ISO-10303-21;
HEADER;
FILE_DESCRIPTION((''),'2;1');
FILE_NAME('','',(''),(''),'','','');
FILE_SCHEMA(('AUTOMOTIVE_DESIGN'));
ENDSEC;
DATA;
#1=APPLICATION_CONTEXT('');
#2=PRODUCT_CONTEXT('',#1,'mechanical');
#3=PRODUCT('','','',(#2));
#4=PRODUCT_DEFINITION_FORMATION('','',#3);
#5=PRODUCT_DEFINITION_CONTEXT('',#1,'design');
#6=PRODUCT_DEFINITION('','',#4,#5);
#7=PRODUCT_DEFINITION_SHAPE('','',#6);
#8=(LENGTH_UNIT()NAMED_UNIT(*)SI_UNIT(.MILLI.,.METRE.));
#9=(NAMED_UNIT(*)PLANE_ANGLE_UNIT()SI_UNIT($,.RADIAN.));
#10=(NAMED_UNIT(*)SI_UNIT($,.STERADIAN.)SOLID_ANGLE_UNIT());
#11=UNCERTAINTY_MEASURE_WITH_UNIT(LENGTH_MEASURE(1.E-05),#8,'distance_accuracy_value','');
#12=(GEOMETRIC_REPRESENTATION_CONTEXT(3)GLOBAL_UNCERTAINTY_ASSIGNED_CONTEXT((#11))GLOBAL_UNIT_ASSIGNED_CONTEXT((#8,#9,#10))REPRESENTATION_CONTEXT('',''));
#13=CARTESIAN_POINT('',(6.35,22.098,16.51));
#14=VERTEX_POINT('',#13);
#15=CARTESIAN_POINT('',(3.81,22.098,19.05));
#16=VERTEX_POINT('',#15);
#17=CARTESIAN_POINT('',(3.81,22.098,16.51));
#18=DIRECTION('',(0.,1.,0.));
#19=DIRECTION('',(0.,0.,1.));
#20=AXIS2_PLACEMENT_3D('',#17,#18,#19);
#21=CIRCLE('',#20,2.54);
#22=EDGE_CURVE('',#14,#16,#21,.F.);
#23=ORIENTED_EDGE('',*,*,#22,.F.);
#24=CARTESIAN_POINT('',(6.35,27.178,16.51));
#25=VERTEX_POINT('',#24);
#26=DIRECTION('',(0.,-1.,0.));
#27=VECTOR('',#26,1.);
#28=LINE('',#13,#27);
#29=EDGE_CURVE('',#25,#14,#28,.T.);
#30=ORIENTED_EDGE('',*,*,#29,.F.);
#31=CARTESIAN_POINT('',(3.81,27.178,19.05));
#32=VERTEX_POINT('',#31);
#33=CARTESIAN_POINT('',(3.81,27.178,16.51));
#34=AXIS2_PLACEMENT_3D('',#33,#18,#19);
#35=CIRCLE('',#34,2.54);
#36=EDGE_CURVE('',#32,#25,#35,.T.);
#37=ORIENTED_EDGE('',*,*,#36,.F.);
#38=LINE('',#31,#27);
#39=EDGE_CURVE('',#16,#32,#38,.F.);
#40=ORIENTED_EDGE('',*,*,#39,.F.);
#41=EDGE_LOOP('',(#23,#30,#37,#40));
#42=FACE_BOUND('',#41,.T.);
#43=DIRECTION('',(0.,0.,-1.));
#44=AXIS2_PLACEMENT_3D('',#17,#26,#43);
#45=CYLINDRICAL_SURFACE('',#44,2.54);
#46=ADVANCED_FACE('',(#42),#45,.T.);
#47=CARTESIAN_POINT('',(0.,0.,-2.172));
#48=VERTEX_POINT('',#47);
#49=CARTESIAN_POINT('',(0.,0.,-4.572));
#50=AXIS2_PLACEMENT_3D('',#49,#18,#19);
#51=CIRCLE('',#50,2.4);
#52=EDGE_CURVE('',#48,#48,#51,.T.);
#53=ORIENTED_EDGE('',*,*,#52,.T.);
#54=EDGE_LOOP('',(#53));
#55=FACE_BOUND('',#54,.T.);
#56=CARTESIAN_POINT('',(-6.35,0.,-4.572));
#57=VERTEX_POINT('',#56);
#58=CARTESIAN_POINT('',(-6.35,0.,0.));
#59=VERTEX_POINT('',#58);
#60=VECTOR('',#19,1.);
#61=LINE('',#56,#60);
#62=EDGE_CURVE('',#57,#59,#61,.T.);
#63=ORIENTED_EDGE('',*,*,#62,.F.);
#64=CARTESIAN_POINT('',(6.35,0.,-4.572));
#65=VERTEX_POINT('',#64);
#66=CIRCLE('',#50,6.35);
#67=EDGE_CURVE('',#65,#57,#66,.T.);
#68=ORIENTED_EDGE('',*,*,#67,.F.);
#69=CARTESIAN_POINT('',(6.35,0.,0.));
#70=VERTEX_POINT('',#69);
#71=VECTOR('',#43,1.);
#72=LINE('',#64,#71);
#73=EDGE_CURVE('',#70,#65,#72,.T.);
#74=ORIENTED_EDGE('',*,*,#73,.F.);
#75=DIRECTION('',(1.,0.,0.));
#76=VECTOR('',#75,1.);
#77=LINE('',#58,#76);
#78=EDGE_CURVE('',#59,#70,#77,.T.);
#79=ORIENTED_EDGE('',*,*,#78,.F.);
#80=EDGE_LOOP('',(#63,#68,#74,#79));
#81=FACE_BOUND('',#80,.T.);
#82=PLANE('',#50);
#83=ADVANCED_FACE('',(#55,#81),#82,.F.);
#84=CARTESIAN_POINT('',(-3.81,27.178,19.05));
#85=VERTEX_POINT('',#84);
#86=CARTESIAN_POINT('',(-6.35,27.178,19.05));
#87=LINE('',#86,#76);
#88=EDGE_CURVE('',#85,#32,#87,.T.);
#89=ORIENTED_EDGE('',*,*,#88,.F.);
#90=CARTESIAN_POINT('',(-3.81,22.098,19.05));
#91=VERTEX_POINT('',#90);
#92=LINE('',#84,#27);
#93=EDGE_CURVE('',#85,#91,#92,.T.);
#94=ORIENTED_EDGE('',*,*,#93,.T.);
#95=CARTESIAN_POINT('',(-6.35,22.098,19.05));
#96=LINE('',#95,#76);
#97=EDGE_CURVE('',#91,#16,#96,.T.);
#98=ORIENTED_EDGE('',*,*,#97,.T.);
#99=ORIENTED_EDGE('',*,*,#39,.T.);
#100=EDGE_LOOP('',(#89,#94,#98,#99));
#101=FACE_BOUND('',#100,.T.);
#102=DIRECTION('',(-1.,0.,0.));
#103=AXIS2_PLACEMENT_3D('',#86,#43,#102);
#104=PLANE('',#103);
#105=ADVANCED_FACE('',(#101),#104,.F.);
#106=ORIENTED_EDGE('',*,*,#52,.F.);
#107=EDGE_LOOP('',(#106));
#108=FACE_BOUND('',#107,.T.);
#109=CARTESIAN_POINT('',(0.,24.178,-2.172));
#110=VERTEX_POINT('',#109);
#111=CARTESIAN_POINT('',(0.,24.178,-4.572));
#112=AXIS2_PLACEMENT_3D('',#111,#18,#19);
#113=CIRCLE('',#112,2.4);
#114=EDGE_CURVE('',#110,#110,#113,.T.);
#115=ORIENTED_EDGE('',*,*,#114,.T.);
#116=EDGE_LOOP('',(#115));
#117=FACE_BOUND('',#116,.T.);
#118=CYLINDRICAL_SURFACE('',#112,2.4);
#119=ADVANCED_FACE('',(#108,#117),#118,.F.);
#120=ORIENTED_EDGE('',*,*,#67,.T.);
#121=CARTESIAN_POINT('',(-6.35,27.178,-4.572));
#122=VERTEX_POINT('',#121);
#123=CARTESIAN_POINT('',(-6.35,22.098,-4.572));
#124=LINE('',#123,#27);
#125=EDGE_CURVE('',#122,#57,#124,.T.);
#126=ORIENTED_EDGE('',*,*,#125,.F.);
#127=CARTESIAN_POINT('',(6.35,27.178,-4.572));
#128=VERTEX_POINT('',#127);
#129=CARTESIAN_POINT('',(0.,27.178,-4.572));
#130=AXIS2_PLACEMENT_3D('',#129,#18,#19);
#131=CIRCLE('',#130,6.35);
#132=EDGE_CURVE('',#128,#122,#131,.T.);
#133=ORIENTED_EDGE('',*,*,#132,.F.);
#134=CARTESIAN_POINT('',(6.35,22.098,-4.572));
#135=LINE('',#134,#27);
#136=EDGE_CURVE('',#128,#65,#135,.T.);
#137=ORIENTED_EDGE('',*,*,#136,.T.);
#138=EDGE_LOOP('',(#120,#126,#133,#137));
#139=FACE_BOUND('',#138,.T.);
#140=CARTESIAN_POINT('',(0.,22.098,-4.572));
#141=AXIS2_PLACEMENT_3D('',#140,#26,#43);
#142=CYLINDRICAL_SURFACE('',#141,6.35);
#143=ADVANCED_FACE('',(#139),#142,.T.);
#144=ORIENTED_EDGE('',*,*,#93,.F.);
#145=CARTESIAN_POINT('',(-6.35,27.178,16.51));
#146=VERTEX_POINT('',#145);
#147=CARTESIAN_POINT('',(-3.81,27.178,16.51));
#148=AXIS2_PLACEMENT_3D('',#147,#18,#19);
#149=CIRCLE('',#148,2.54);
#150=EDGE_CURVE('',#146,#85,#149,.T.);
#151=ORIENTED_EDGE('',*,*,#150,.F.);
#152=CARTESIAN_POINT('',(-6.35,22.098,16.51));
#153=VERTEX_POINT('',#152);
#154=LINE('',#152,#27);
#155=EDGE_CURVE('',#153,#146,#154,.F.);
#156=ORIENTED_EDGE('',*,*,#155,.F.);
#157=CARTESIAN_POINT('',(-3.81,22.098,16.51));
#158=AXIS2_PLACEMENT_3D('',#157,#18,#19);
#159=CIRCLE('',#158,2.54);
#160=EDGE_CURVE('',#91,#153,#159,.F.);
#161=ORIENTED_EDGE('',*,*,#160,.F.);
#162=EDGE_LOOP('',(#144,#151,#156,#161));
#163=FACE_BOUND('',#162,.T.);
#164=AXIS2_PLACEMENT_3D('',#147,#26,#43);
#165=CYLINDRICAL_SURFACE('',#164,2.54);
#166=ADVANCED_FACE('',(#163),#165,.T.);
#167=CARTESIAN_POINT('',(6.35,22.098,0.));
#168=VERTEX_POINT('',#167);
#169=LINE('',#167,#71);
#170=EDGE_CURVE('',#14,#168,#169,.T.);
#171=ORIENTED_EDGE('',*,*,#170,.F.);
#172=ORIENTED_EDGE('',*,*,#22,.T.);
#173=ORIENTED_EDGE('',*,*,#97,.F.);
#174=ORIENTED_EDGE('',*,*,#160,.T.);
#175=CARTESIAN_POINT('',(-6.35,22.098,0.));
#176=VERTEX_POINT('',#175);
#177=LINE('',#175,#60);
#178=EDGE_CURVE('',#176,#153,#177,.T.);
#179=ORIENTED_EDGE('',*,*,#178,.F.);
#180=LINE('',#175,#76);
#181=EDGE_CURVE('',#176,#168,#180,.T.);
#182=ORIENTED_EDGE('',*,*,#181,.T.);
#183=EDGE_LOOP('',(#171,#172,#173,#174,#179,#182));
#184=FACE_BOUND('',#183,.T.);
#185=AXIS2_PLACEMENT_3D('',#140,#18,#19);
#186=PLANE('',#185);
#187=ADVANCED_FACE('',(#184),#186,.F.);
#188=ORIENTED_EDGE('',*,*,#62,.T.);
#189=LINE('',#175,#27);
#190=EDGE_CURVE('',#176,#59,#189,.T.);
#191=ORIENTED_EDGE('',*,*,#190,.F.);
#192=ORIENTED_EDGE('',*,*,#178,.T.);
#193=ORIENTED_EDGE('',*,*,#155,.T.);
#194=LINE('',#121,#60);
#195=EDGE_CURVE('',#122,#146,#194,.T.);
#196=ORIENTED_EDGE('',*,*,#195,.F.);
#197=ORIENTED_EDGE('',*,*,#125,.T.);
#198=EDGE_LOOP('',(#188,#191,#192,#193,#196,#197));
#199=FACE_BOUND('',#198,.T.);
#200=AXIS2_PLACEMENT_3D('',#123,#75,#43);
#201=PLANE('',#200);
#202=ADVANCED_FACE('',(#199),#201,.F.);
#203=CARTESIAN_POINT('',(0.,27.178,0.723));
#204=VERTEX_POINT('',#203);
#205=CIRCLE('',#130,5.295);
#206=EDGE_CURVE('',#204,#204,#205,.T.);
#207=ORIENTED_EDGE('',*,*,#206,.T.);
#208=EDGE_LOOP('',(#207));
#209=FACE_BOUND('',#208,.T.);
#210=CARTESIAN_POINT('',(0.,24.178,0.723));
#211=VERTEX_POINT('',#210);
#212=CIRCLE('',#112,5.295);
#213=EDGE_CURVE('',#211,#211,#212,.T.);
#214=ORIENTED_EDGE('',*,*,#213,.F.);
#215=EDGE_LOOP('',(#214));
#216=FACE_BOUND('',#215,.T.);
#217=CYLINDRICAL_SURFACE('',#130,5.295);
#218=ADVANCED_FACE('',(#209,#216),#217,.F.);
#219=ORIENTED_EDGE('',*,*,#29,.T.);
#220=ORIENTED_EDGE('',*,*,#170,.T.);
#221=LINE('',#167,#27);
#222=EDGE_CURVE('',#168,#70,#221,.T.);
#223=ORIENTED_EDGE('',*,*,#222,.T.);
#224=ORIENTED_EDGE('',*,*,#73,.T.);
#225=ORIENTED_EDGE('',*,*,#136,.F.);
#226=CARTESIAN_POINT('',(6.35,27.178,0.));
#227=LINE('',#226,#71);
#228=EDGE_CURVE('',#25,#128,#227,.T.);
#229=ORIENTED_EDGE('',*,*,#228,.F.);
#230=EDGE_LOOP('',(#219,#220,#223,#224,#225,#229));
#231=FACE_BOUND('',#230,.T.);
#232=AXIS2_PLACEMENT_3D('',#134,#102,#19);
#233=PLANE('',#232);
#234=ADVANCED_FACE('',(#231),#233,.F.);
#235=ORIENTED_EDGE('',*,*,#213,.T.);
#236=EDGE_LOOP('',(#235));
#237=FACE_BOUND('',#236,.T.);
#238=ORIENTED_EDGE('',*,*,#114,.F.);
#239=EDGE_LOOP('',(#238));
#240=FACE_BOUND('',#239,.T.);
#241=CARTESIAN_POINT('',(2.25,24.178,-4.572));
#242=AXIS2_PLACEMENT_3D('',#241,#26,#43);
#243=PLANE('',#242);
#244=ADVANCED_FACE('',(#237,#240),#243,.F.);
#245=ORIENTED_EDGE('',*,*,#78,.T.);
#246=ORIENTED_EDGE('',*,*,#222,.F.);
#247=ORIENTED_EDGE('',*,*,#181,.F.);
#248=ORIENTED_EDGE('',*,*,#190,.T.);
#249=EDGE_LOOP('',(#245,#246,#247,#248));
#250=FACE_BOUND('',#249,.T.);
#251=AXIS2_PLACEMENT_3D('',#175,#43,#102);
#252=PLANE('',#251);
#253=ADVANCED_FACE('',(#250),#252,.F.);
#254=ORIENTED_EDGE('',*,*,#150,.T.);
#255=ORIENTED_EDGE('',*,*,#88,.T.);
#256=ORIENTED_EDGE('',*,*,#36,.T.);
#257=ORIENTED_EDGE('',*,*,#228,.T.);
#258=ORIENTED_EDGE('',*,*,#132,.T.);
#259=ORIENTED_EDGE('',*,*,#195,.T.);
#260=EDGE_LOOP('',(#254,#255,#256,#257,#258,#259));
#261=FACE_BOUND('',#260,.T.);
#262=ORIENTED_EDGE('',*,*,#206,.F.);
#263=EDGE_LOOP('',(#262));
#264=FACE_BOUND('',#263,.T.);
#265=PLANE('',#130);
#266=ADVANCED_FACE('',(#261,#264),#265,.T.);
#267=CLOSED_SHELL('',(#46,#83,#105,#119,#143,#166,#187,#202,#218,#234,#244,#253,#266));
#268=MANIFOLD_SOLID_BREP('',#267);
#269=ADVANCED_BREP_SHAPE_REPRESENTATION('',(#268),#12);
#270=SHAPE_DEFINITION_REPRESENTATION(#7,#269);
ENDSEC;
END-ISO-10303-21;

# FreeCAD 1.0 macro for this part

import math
import FreeCAD as App
import Part
import Sketcher
Q = App.Units.Quantity


def edges_at(feature, points):
    """Names of the edges that pass closest to the given points."""
    edges = feature.Shape.Edges
    near = lambda p: min(range(len(edges)), key=lambda i: edges[i].distToShape(Part.Vertex(*p))[0])
    return sorted({f"Edge{near(p) + 1}" for p in points})

doc = App.newDocument("Part")
body = doc.addObject("PartDesign::Body", "Body")

# Sketch on XZ plane
sketch1 = body.newObject("Sketcher::SketchObject", "Sketch")
sketch1.AttachmentSupport = (doc.getObject("XZ_Plane"), [""])
sketch1.MapMode = "FlatFace"
sketch1.addGeometry([
    Part.LineSegment(App.Vector(-6.3, -4.6, 0), App.Vector(-6.3, 0, 0)),
    Part.LineSegment(App.Vector(-6.3, 0, 0), App.Vector(6.3, 0, 0)),
    Part.LineSegment(App.Vector(6.3, 0, 0), App.Vector(6.3, -4.6, 0)),
    Part.ArcOfCircle(Part.Circle(App.Vector(0, -4.6, 0), App.Vector(0, 0, 1), 6.3), math.radians(180), math.radians(360)),
], False)
sketch1.addConstraint([
    Sketcher.Constraint("Coincident", 0, 2, 1, 1),
    Sketcher.Constraint("Coincident", 1, 2, 2, 1),
    Sketcher.Constraint("Tangent", 2, 2, 3, 2),
    Sketcher.Constraint("Tangent", 3, 1, 0, 1),
    Sketcher.Constraint("Vertical", 0),
    Sketcher.Constraint("Horizontal", 1),
    Sketcher.Constraint("Vertical", 2),
    Sketcher.Constraint("Symmetric", 0, 2, 1, 2, -1, 1),
    Sketcher.Constraint("Radius", 3, Q("0.25 in")),
    Sketcher.Constraint("DistanceY", 0, 1, 0, 2, Q("0.18 in")),
])
pad1 = body.newObject("PartDesign::Pad", "Pad")
pad1.Profile = sketch1
pad1.Length = Q("0.87 in")
pad1.Reversed = True

# Sketch on XZ plane
sketch2 = body.newObject("Sketcher::SketchObject", "Sketch001")
sketch2.AttachmentSupport = (doc.getObject("XZ_Plane"), [""])
sketch2.MapMode = "FlatFace"
sketch2.AttachmentOffset = App.Placement(App.Vector(0, 0, -0.87 * 25.4), App.Rotation())
sketch2.addGeometry([
    Part.LineSegment(App.Vector(-6, 19, 0), App.Vector(6, 19, 0)),
    Part.LineSegment(App.Vector(6, 19, 0), App.Vector(6, -5, 0)),
    Part.ArcOfCircle(Part.Circle(App.Vector(0, -5, 0), App.Vector(0, 0, 1), 6), math.radians(180), math.radians(360)),
    Part.LineSegment(App.Vector(-6, -5, 0), App.Vector(-6, 19, 0)),
], False)
sketch2.addConstraint([
    Sketcher.Constraint("Coincident", 0, 2, 1, 1),
    Sketcher.Constraint("Tangent", 1, 2, 2, 2),
    Sketcher.Constraint("Tangent", 2, 1, 3, 1),
    Sketcher.Constraint("Coincident", 3, 2, 0, 1),
    Sketcher.Constraint("Horizontal", 0),
    Sketcher.Constraint("Vertical", 1),
    Sketcher.Constraint("Vertical", 3),
    Sketcher.Constraint("PointOnObject", 2, 3, -2),
    Sketcher.Constraint("Radius", 2, Q("0.25 in")),
    Sketcher.Constraint("DistanceY", 1, 2, 1, 1, Q("0.93 in")),
    Sketcher.Constraint("DistanceY", 2, 3, -1, 1, Q("0.18 in")),
])
pad2 = body.newObject("PartDesign::Pad", "Pad001")
pad2.Profile = sketch2
pad2.Length = Q("0.2 in")
pad2.Reversed = True
doc.recompute()

fillet = body.newObject("PartDesign::Fillet", "Fillet")
fillet.Base = (pad2, edges_at(pad2, [(6.35, 24.638, 19.05), (-6.35, 24.638, 19.05)]))
fillet.Radius = Q("0.1 in")

# Sketch on XZ plane
sketch3 = body.newObject("Sketcher::SketchObject", "Sketch002")
sketch3.AttachmentSupport = (doc.getObject("XZ_Plane"), [""])
sketch3.MapMode = "FlatFace"
sketch3.AttachmentOffset = App.Placement(App.Vector(0, 0, -1.07 * 25.4), App.Rotation())
sketch3.addGeometry(Part.Circle(App.Vector(0, -4.6, 0), App.Vector(0, 0, 1), 2.2), False)
sketch3.addConstraint([
    Sketcher.Constraint("PointOnObject", 0, 3, -2),
    Sketcher.Constraint("Diameter", 0, 4.5),
    Sketcher.Constraint("DistanceY", 0, 3, -1, 1, Q("0.18 in")),
])
doc.recompute()
hole = body.newObject("PartDesign::Hole", "Hole")
hole.Profile = sketch3
hole.ThreadType = "None"
hole.Diameter = 4.5
hole.DepthType = "ThroughAll"
hole.HoleCutType = "Counterbore"
hole.HoleCutDiameter = 10.59
hole.HoleCutDepth = 3
hole.Reversed = True

# Sketch on XZ plane
sketch4 = body.newObject("Sketcher::SketchObject", "Sketch003")
sketch4.AttachmentSupport = (doc.getObject("XZ_Plane"), [""])
sketch4.MapMode = "FlatFace"
sketch4.AttachmentOffset = App.Placement(App.Vector(0, 0, -24.178), App.Rotation())
sketch4.addGeometry(Part.Circle(App.Vector(0, -4.6, 0), App.Vector(0, 0, 1), 2.4), False)
sketch4.addConstraint([
    Sketcher.Constraint("PointOnObject", 0, 3, -2),
    Sketcher.Constraint("Diameter", 0, 4.8),
    Sketcher.Constraint("DistanceY", 0, 3, -1, 1, Q("0.18 in")),
])
doc.recompute()
hole2 = body.newObject("PartDesign::Hole", "Hole001")
hole2.Profile = sketch4
hole2.ThreadType = "None"
hole2.Diameter = 4.8
hole2.DepthType = "ThroughAll"
hole2.Reversed = True

doc.recompute()
